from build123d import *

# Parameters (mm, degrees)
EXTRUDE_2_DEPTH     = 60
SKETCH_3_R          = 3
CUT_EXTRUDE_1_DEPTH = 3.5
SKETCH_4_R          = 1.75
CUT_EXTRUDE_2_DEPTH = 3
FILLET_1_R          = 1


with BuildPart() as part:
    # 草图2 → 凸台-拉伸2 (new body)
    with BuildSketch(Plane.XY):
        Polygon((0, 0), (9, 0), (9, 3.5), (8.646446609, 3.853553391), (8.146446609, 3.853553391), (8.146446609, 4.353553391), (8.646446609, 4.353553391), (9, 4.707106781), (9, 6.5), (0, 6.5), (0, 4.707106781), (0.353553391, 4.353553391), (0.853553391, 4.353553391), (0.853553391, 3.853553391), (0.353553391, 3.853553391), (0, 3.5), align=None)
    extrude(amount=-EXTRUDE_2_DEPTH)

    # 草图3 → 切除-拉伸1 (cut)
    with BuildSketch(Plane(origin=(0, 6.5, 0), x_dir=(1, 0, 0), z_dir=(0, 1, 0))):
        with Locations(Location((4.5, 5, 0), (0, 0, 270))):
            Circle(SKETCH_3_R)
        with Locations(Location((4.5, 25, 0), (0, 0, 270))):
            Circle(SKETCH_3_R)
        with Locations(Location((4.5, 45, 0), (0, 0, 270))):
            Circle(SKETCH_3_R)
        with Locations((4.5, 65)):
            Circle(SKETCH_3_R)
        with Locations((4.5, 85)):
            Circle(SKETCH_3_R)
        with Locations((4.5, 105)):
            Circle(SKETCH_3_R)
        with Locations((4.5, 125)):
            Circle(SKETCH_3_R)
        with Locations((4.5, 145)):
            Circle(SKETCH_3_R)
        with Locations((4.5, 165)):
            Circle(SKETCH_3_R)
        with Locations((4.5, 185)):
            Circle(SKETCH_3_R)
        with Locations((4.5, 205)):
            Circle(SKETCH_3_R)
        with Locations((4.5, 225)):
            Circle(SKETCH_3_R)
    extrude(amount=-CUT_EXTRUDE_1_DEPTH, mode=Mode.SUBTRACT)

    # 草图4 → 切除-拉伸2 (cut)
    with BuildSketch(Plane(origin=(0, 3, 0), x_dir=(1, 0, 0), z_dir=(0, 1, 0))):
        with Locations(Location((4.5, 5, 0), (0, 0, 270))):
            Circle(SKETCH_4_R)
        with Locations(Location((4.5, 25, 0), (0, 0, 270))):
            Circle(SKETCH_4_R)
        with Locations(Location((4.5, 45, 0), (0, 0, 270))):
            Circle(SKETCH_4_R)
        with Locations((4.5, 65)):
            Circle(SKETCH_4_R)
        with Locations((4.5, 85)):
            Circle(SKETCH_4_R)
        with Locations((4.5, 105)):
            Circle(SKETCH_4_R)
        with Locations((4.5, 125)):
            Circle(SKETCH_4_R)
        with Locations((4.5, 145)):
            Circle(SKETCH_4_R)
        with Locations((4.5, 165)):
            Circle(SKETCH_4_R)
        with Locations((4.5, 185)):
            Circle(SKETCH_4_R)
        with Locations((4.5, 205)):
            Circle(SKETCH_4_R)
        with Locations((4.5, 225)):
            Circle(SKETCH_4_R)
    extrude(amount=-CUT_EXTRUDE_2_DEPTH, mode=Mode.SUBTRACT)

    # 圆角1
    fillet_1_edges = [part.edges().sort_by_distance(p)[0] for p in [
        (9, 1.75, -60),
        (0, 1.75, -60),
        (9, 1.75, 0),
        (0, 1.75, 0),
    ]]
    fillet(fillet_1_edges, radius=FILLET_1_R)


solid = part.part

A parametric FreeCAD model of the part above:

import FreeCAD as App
import Part
import Sketcher


def edges_at(feature, points):
    """Names of the edges that pass closest to the given points."""
    edges = feature.Shape.Edges
    near = lambda p: min(range(len(edges)), key=lambda i: edges[i].distToShape(Part.Vertex(*p))[0])
    return sorted({f"Edge{near(p) + 1}" for p in points})


def add_polygon(sketch, points):
    """Adds a closed chain of lines whose ends are joined by coincident constraints."""
    first, n = sketch.GeometryCount, len(points)
    for a, b in zip(points, points[1:] + points[:1]):
        sketch.addGeometry(Part.LineSegment(App.Vector(*a, 0), App.Vector(*b, 0)), False)
    for i in range(n):
        sketch.addConstraint(Sketcher.Constraint("Coincident", first + i, 2, first + (i + 1) % n, 1))

doc = App.newDocument("Part")
body = doc.addObject("PartDesign::Body", "Body")

# Sketch on XY plane
sketch1 = body.newObject("Sketcher::SketchObject", "Sketch")
sketch1.AttachmentSupport = (doc.getObject("XY_Plane"), [""])
sketch1.MapMode = "FlatFace"
add_polygon(sketch1, [(0, 0), (9, 0), (9, 3.5), (8.65, 3.85), (8.15, 3.85), (8.15, 4.35), (8.65, 4.35), (9, 4.71), (9, 6.5), (0, 6.5), (0, 4.71), (0.35, 4.35), (0.85, 4.35), (0.85, 3.85), (0.35, 3.85), (0, 3.5)])  # lines 0-15
sketch1.addConstraint([
    Sketcher.Constraint("Horizontal", 0),
    Sketcher.Constraint("Vertical", 1),
    Sketcher.Constraint("Horizontal", 3),
    Sketcher.Constraint("Vertical", 4),
    Sketcher.Constraint("Horizontal", 5),
    Sketcher.Constraint("Vertical", 7),
    Sketcher.Constraint("Horizontal", 8),
    Sketcher.Constraint("Vertical", 9),
    Sketcher.Constraint("Horizontal", 11),
    Sketcher.Constraint("Vertical", 12),
    Sketcher.Constraint("Horizontal", 13),
    Sketcher.Constraint("Vertical", 15),
    Sketcher.Constraint("Coincident", 15, 2, -1, 1),
    Sketcher.Constraint("PointOnObject", 8, 2, -2),
    Sketcher.Constraint("Perpendicular", 2, 6),
    Sketcher.Constraint("Perpendicular", 6, 10),
    Sketcher.Constraint("Perpendicular", 10, 14),
    Sketcher.Constraint("Horizontal", 6, 2, 9, 2),
    Sketcher.Constraint("Horizontal", 5, 2, 10, 2),
    Sketcher.Constraint("Horizontal", 3, 2, 12, 2),
    Sketcher.Constraint("Horizontal", 1, 2, 14, 2),
    Sketcher.Constraint("Vertical", 2, 2, 5, 2),
    Sketcher.Constraint("Vertical", 1, 2, 6, 2),
    Sketcher.Constraint("Vertical", 10, 2, 13, 2),
    Sketcher.Constraint("Equal", 5, 11),
    Sketcher.Constraint("Equal", 13, 4),
    Sketcher.Constraint("DistanceX", 0, 1, 0, 2, 9.0),
    Sketcher.Constraint("DistanceX", 3, 2, 3, 1, 0.5),
    Sketcher.Constraint("DistanceY", 1, 1, 1, 2, 3.5),
    Sketcher.Constraint("Distance", 2, 0.5),
    Sketcher.Constraint("DistanceY", -1, 1, 7, 2, 6.5),
])
pad1 = body.newObject("PartDesign::Pad", "Pad")
pad1.Profile = sketch1
pad1.Length = 60
pad1.Reversed = True

# Sketch on XZ plane
sketch2 = body.newObject("Sketcher::SketchObject", "Sketch001")
sketch2.AttachmentSupport = (doc.getObject("XZ_Plane"), [""])
sketch2.MapMode = "FlatFace"
sketch2.AttachmentOffset = App.Placement(App.Vector(0, 0, -6.5), App.Rotation())
sketch2.addGeometry([
    Part.Circle(App.Vector(4.5, -5, 0), App.Vector(0, 0, 1), 3),  # 0
    Part.Circle(App.Vector(4.5, -25, 0), App.Vector(0, 0, 1), 3),  # 1
    Part.Circle(App.Vector(4.5, -45, 0), App.Vector(0, 0, 1), 3),  # 2
    Part.Circle(App.Vector(4.5, -65, 0), App.Vector(0, 0, 1), 3),  # 3
    Part.Circle(App.Vector(4.5, -85, 0), App.Vector(0, 0, 1), 3),  # 4
    Part.Circle(App.Vector(4.5, -105, 0), App.Vector(0, 0, 1), 3),  # 5
    Part.Circle(App.Vector(4.5, -125, 0), App.Vector(0, 0, 1), 3),  # 6
    Part.Circle(App.Vector(4.5, -145, 0), App.Vector(0, 0, 1), 3),  # 7
    Part.Circle(App.Vector(4.5, -165, 0), App.Vector(0, 0, 1), 3),  # 8
    Part.Circle(App.Vector(4.5, -185, 0), App.Vector(0, 0, 1), 3),  # 9
    Part.Circle(App.Vector(4.5, -205, 0), App.Vector(0, 0, 1), 3),  # 10
    Part.Circle(App.Vector(4.5, -225, 0), App.Vector(0, 0, 1), 3),  # 11
], False)
sketch2.addConstraint([
    Sketcher.Constraint("Equal", 0, 1),
    Sketcher.Constraint("Equal", 1, 2),
    Sketcher.Constraint("Equal", 2, 3),
    Sketcher.Constraint("Equal", 3, 4),
    Sketcher.Constraint("Equal", 4, 5),
    Sketcher.Constraint("Equal", 5, 6),
    Sketcher.Constraint("Equal", 6, 7),
    Sketcher.Constraint("Equal", 7, 8),
    Sketcher.Constraint("Equal", 8, 9),
    Sketcher.Constraint("Equal", 9, 10),
    Sketcher.Constraint("Equal", 10, 11),
    Sketcher.Constraint("Vertical", 0, 3, 1, 3),
    Sketcher.Constraint("Vertical", 1, 3, 2, 3),
    Sketcher.Constraint("Vertical", 2, 3, 3, 3),
    Sketcher.Constraint("Vertical", 3, 3, 4, 3),
    Sketcher.Constraint("Vertical", 4, 3, 5, 3),
    Sketcher.Constraint("Vertical", 5, 3, 6, 3),
    Sketcher.Constraint("Vertical", 6, 3, 7, 3),
    Sketcher.Constraint("Vertical", 7, 3, 8, 3),
    Sketcher.Constraint("Vertical", 8, 3, 9, 3),
    Sketcher.Constraint("Vertical", 9, 3, 10, 3),
    Sketcher.Constraint("Vertical", 10, 3, 11, 3),
    Sketcher.Constraint("Diameter", 0, 6.0),
    Sketcher.Constraint("DistanceY", 0, 3, -1, 1, 5.0),
    Sketcher.Constraint("DistanceY", 1, 3, -1, 1, 25.0),
    Sketcher.Constraint("DistanceY", 2, 3, -1, 1, 45.0),
    Sketcher.Constraint("DistanceY", 3, 3, -1, 1, 65.0),
    Sketcher.Constraint("DistanceY", 4, 3, -1, 1, 85.0),
    Sketcher.Constraint("DistanceY", 5, 3, -1, 1, 105.0),
    Sketcher.Constraint("DistanceY", 6, 3, -1, 1, 125.0),
    Sketcher.Constraint("DistanceY", 7, 3, -1, 1, 145.0),
    Sketcher.Constraint("DistanceY", 8, 3, -1, 1, 165.0),
    Sketcher.Constraint("DistanceY", 9, 3, -1, 1, 185.0),
    Sketcher.Constraint("DistanceY", 10, 3, -1, 1, 205.0),
    Sketcher.Constraint("DistanceY", 11, 3, -1, 1, 225.0),
    Sketcher.Constraint("DistanceX", -1, 1, 0, 3, 4.5),
])
pocket1 = body.newObject("PartDesign::Pocket", "Pocket")
pocket1.Profile = sketch2
pocket1.Length = 3.5
pocket1.Reversed = True

# Sketch on XZ plane
sketch3 = body.newObject("Sketcher::SketchObject", "Sketch002")
sketch3.AttachmentSupport = (doc.getObject("XZ_Plane"), [""])
sketch3.MapMode = "FlatFace"
sketch3.AttachmentOffset = App.Placement(App.Vector(0, 0, -3), App.Rotation())
sketch3.addGeometry([
    Part.Circle(App.Vector(4.5, -5, 0), App.Vector(0, 0, 1), 1.8),  # 0
    Part.Circle(App.Vector(4.5, -25, 0), App.Vector(0, 0, 1), 1.8),  # 1
    Part.Circle(App.Vector(4.5, -45, 0), App.Vector(0, 0, 1), 1.8),  # 2
    Part.Circle(App.Vector(4.5, -65, 0), App.Vector(0, 0, 1), 1.8),  # 3
    Part.Circle(App.Vector(4.5, -85, 0), App.Vector(0, 0, 1), 1.8),  # 4
    Part.Circle(App.Vector(4.5, -105, 0), App.Vector(0, 0, 1), 1.8),  # 5
    Part.Circle(App.Vector(4.5, -125, 0), App.Vector(0, 0, 1), 1.8),  # 6
    Part.Circle(App.Vector(4.5, -145, 0), App.Vector(0, 0, 1), 1.8),  # 7
    Part.Circle(App.Vector(4.5, -165, 0), App.Vector(0, 0, 1), 1.8),  # 8
    Part.Circle(App.Vector(4.5, -185, 0), App.Vector(0, 0, 1), 1.8),  # 9
    Part.Circle(App.Vector(4.5, -205, 0), App.Vector(0, 0, 1), 1.8),  # 10
    Part.Circle(App.Vector(4.5, -225, 0), App.Vector(0, 0, 1), 1.8),  # 11
], False)
sketch3.addConstraint([
    Sketcher.Constraint("Equal", 0, 1),
    Sketcher.Constraint("Equal", 1, 2),
    Sketcher.Constraint("Equal", 2, 3),
    Sketcher.Constraint("Equal", 3, 4),
    Sketcher.Constraint("Equal", 4, 5),
    Sketcher.Constraint("Equal", 5, 6),
    Sketcher.Constraint("Equal", 6, 7),
    Sketcher.Constraint("Equal", 7, 8),
    Sketcher.Constraint("Equal", 8, 9),
    Sketcher.Constraint("Equal", 9, 10),
    Sketcher.Constraint("Equal", 10, 11),
    Sketcher.Constraint("Vertical", 0, 3, 1, 3),
    Sketcher.Constraint("Vertical", 1, 3, 2, 3),
    Sketcher.Constraint("Vertical", 2, 3, 3, 3),
    Sketcher.Constraint("Vertical", 3, 3, 4, 3),
    Sketcher.Constraint("Vertical", 4, 3, 5, 3),
    Sketcher.Constraint("Vertical", 5, 3, 6, 3),
    Sketcher.Constraint("Vertical", 6, 3, 7, 3),
    Sketcher.Constraint("Vertical", 7, 3, 8, 3),
    Sketcher.Constraint("Vertical", 8, 3, 9, 3),
    Sketcher.Constraint("Vertical", 9, 3, 10, 3),
    Sketcher.Constraint("Vertical", 10, 3, 11, 3),
    Sketcher.Constraint("Diameter", 0, 3.5),
    Sketcher.Constraint("DistanceY", 0, 3, -1, 1, 5.0),
    Sketcher.Constraint("DistanceY", 1, 3, -1, 1, 25.0),
    Sketcher.Constraint("DistanceY", 2, 3, -1, 1, 45.0),
    Sketcher.Constraint("DistanceY", 3, 3, -1, 1, 65.0),
    Sketcher.Constraint("DistanceY", 4, 3, -1, 1, 85.0),
    Sketcher.Constraint("DistanceY", 5, 3, -1, 1, 105.0),
    Sketcher.Constraint("DistanceY", 6, 3, -1, 1, 125.0),
    Sketcher.Constraint("DistanceY", 7, 3, -1, 1, 145.0),
    Sketcher.Constraint("DistanceY", 8, 3, -1, 1, 165.0),
    Sketcher.Constraint("DistanceY", 9, 3, -1, 1, 185.0),
    Sketcher.Constraint("DistanceY", 10, 3, -1, 1, 205.0),
    Sketcher.Constraint("DistanceY", 11, 3, -1, 1, 225.0),
    Sketcher.Constraint("DistanceX", -1, 1, 0, 3, 4.5),
])
pocket2 = body.newObject("PartDesign::Pocket", "Pocket001")
pocket2.Profile = sketch3
pocket2.Length = 3
pocket2.Reversed = True
doc.recompute()

fillet = body.newObject("PartDesign::Fillet", "Fillet")
fillet.Base = (pocket2, edges_at(pocket2, [
    (9, 1.75, -60),
    (0, 1.75, -60),
    (9, 1.75, 0),
    (0, 1.75, 0),
]))
fillet.Radius = 1

doc.recompute()
